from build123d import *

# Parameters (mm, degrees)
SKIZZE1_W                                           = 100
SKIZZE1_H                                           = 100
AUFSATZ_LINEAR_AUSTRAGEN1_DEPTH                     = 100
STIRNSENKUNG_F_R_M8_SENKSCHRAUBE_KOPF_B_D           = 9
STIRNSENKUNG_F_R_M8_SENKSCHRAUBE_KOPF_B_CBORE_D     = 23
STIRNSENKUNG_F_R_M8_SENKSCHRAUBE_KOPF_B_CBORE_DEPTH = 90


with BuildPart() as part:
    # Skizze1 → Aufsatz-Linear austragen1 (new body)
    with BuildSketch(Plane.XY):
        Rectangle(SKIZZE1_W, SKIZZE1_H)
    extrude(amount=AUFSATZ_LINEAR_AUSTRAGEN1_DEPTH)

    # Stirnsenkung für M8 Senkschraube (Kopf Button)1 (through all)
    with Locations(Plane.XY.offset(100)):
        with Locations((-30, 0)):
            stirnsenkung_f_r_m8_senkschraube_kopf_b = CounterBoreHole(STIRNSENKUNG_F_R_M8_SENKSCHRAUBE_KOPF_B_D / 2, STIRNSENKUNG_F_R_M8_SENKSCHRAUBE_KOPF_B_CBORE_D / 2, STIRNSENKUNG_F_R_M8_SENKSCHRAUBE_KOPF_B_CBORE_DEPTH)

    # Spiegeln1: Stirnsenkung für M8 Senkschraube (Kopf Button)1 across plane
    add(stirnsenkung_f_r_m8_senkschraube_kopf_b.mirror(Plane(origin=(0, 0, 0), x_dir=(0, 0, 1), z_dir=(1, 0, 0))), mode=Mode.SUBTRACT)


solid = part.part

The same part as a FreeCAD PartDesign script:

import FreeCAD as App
import Part
import Sketcher

V = App.Vector
Q = App.Units.Quantity

doc = App.newDocument("Part")
body = doc.addObject("PartDesign::Body", "Body")

# Sketch on XY plane
sketch1 = body.newObject("Sketcher::SketchObject", "Sketch")
sketch1.AttachmentSupport = (doc.getObject("XY_Plane"), [""])
sketch1.MapMode = "FlatFace"
sketch1.addGeometry([
    Part.LineSegment(V(-50, 50, 0), V(-50, -50, 0)),
    Part.LineSegment(V(-50, -50, 0), V(50, -50, 0)),
    Part.LineSegment(V(50, -50, 0), V(50, 50, 0)),
    Part.LineSegment(V(50, 50, 0), V(-50, 50, 0)),
], False)
sketch1.addConstraint([
    Sketcher.Constraint("Coincident", 0, 2, 1, 1),
    Sketcher.Constraint("Coincident", 1, 2, 2, 1),
    Sketcher.Constraint("Coincident", 2, 2, 3, 1),
    Sketcher.Constraint("Coincident", 3, 2, 0, 1),
    Sketcher.Constraint("Vertical", 0),
    Sketcher.Constraint("Horizontal", 1),
    Sketcher.Constraint("Vertical", 2),
    Sketcher.Constraint("Horizontal", 3),
    Sketcher.Constraint("Symmetric", 0, 2, 2, 2, -1, 1),
    Sketcher.Constraint("Equal", 3, 0),
    Sketcher.Constraint("DistanceX", 1, 1, 1, 2, Q("100 mm")),
])
pad1 = body.newObject("PartDesign::Pad", "Pad")
pad1.Profile = sketch1
pad1.Length = 100

# Sketch on XY plane
sketch2 = body.newObject("Sketcher::SketchObject", "Sketch001")
sketch2.AttachmentSupport = (doc.getObject("XY_Plane"), [""])
sketch2.MapMode = "FlatFace"
sketch2.AttachmentOffset = App.Placement(V(0, 0, 100), App.Rotation())
sketch2.addGeometry(Part.Circle(V(-30, 0, 0), V(0, 0, 1), 4.5), False)
sketch2.addConstraint([
    Sketcher.Constraint("PointOnObject", 0, 3, -1),
    Sketcher.Constraint("Diameter", 0, Q("9 mm")),
    Sketcher.Constraint("DistanceX", 0, 3, -1, 1, Q("30 mm")),
])
doc.recompute()
hole = body.newObject("PartDesign::Hole", "Hole")
hole.Profile = sketch2
hole.ThreadType = "None"
hole.Diameter = 9
hole.DepthType = "ThroughAll"
hole.HoleCutType = "Counterbore"
hole.HoleCutDiameter = 23
hole.HoleCutDepth = 90
doc.recompute()

mirrored = body.newObject("PartDesign::Mirrored", "Mirrored")
mirrored.Originals = [hole]
mirrored.MirrorPlane = (doc.getObject("YZ_Plane"), [""])
body.Tip = mirrored

doc.recompute()
